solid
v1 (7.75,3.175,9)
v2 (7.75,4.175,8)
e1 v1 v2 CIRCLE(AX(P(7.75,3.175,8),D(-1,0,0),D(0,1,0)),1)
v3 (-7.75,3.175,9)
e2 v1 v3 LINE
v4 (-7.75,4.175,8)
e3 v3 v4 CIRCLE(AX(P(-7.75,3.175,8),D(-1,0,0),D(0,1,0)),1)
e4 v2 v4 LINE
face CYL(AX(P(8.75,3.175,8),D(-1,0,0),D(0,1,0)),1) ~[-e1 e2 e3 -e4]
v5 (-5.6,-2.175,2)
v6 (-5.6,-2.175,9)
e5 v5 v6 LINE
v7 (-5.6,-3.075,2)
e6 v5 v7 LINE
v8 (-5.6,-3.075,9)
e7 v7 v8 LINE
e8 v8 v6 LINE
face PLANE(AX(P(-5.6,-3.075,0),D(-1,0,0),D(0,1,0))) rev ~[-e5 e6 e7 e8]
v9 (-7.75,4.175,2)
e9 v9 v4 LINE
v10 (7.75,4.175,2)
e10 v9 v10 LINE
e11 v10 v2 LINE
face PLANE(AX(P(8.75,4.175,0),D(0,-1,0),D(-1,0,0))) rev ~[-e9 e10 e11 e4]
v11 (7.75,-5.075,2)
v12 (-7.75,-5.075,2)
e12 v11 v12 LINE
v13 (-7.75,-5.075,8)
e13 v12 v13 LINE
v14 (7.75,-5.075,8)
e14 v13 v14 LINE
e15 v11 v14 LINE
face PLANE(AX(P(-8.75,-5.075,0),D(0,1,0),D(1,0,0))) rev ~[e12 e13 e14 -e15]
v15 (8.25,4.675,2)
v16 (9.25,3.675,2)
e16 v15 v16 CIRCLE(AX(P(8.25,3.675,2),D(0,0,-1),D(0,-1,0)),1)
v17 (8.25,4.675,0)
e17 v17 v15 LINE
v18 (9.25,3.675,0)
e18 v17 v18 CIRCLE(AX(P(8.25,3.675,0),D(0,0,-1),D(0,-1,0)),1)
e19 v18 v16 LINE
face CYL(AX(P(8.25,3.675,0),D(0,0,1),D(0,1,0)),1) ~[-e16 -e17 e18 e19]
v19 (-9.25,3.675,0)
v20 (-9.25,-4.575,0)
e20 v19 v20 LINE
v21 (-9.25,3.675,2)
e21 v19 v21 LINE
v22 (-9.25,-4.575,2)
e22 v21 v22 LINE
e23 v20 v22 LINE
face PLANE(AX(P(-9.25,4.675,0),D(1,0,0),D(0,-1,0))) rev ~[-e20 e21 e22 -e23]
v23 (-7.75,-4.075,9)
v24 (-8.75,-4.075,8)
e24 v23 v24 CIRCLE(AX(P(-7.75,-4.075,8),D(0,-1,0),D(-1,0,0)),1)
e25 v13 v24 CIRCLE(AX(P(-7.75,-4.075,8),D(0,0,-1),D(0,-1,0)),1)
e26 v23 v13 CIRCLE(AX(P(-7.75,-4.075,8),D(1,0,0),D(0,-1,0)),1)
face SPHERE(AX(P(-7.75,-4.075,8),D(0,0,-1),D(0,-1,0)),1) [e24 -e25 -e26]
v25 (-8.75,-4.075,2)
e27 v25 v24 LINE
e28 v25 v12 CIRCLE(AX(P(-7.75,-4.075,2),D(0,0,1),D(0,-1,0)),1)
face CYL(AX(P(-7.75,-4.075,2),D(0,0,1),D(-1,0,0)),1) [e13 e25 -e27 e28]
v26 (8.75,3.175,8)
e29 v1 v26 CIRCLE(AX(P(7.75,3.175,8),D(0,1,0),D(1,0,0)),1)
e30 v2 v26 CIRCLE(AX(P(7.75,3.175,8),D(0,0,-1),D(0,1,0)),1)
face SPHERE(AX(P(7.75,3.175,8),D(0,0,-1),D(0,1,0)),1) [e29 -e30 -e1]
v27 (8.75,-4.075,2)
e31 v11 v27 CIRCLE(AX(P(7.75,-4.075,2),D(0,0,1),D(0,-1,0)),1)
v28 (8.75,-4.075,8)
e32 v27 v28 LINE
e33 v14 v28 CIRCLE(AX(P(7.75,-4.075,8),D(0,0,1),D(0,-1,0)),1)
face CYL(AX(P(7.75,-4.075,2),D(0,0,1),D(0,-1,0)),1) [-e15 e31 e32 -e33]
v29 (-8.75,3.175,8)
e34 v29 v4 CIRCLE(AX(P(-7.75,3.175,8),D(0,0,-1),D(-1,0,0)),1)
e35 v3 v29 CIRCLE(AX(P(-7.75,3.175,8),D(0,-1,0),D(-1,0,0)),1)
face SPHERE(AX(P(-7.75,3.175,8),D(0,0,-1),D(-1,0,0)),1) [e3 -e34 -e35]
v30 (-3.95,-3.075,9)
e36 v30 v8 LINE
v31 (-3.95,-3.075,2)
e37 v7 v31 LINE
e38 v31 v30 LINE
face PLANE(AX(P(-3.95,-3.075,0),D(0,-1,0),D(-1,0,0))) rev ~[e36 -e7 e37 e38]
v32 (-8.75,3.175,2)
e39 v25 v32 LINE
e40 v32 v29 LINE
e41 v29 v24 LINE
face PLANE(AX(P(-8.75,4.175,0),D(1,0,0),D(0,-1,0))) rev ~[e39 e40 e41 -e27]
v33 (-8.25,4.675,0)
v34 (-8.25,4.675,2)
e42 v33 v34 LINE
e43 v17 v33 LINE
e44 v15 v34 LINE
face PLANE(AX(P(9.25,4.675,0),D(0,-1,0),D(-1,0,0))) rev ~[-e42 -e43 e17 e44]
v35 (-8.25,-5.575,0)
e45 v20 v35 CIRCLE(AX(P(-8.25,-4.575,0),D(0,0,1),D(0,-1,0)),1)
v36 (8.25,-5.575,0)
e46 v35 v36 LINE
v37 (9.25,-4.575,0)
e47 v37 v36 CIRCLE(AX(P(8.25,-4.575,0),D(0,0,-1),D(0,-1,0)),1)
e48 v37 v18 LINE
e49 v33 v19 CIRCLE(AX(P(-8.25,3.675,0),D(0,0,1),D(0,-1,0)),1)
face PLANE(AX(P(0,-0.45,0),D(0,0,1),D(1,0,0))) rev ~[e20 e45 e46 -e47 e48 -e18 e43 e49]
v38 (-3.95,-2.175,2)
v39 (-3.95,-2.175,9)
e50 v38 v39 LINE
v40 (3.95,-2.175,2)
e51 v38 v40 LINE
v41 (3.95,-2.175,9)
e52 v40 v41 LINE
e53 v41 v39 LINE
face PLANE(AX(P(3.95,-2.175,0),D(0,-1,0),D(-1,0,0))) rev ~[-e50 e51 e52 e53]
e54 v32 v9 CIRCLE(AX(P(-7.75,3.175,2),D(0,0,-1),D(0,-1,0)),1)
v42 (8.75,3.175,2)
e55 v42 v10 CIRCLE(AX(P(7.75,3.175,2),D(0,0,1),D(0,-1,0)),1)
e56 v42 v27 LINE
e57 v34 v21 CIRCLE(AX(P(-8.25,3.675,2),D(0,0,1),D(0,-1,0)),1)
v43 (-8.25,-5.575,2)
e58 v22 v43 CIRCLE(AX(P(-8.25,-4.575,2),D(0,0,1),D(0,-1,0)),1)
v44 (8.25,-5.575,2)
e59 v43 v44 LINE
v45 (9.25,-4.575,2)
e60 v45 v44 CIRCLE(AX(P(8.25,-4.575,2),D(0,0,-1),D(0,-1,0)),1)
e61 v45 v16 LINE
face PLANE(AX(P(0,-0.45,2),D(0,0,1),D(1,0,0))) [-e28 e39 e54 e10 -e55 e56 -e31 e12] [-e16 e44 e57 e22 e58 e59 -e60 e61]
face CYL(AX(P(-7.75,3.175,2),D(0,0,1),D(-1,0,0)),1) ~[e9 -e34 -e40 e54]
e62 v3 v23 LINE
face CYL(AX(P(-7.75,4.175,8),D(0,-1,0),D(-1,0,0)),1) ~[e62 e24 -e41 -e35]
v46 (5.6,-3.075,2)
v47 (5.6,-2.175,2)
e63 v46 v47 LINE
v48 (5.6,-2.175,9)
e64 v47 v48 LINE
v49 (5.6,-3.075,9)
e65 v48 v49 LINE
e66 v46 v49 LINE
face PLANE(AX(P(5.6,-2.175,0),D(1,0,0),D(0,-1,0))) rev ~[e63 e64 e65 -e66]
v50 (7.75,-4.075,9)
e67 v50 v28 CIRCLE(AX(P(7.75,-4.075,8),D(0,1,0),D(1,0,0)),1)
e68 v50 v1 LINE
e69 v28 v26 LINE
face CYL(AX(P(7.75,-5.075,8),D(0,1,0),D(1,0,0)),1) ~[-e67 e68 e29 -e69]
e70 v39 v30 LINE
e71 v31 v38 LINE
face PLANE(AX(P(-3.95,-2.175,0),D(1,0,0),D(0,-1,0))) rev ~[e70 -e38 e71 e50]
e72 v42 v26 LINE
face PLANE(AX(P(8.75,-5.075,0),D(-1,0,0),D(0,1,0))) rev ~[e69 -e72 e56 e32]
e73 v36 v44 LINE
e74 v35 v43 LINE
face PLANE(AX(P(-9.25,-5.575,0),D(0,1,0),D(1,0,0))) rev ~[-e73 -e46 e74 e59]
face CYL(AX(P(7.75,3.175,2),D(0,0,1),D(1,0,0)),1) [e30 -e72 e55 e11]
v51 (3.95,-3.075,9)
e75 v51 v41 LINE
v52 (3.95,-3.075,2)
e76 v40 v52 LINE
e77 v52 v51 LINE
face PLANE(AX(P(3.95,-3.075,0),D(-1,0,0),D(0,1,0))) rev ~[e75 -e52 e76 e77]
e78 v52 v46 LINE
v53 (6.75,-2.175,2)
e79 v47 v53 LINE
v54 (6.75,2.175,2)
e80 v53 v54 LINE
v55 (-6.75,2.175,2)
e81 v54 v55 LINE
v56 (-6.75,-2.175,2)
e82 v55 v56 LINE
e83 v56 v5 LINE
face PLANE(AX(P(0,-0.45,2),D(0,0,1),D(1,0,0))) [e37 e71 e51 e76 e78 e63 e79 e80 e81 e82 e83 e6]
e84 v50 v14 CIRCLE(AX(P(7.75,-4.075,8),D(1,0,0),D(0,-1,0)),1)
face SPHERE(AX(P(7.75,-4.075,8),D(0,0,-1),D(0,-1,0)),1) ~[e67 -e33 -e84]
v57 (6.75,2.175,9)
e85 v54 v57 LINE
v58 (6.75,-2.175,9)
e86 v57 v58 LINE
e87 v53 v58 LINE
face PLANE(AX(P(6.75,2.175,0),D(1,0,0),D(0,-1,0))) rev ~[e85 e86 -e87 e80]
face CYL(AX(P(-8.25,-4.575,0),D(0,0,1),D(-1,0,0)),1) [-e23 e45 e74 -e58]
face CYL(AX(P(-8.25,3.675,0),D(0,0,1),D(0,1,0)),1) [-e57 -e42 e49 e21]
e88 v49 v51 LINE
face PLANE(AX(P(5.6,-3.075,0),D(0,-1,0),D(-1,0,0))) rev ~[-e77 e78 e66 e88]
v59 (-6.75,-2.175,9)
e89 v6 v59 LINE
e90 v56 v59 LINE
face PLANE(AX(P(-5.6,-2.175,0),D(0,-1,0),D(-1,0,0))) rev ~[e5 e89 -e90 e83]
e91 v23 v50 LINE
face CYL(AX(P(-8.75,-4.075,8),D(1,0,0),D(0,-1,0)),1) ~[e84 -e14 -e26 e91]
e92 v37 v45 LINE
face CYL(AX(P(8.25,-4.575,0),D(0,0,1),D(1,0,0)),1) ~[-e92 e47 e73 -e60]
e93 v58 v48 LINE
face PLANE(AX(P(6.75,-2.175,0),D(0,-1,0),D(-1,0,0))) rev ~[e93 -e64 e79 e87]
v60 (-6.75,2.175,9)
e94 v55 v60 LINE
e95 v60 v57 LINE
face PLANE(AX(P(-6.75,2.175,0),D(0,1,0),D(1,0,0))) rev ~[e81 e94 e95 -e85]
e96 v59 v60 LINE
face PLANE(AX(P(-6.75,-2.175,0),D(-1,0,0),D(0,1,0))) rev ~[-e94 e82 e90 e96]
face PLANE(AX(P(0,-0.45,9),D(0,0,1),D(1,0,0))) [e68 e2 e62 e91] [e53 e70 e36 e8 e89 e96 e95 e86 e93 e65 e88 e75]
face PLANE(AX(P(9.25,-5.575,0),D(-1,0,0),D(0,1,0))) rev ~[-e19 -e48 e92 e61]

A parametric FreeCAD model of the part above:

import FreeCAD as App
import Part
import Sketcher
Q = App.Units.Quantity


def edges_at(feature, points):
    """Names of the edges that pass closest to the given points."""
    edges = feature.Shape.Edges
    near = lambda p: min(range(len(edges)), key=lambda i: edges[i].distToShape(Part.Vertex(*p))[0])
    return sorted({f"Edge{near(p) + 1}" for p in points})

doc = App.newDocument("Part")
body = doc.addObject("PartDesign::Body", "Body")

# Sketch on XY plane
sketch1 = body.newObject("Sketcher::SketchObject", "Sketch")
sketch1.AttachmentSupport = (doc.getObject("XY_Plane"), [""])
sketch1.MapMode = "FlatFace"
sketch1.addGeometry(Part.LineSegment(App.Vector(9, 5, 0), App.Vector(-9, 5, 0)), False)
sketch1.addGeometry(Part.LineSegment(App.Vector(-9, 5, 0), App.Vector(-9, -6, 0)), False)
sketch1.addGeometry(Part.LineSegment(App.Vector(-9, -6, 0), App.Vector(9, -6, 0)), False)
sketch1.addGeometry(Part.LineSegment(App.Vector(9, -6, 0), App.Vector(9, 5, 0)), False)
sketch1.addConstraint(Sketcher.Constraint("Coincident", 0, 2, 1, 1))
sketch1.addConstraint(Sketcher.Constraint("Coincident", 1, 2, 2, 1))
sketch1.addConstraint(Sketcher.Constraint("Coincident", 2, 2, 3, 1))
sketch1.addConstraint(Sketcher.Constraint("Coincident", 3, 2, 0, 1))
sketch1.addConstraint(Sketcher.Constraint("Horizontal", 0))
sketch1.addConstraint(Sketcher.Constraint("Vertical", 1))
sketch1.addConstraint(Sketcher.Constraint("Horizontal", 2))
sketch1.addConstraint(Sketcher.Constraint("Vertical", 3))
sketch1.addConstraint(Sketcher.Constraint("DistanceX", 0, 2, 0, 1, Q("18.5 mm")))
sketch1.addConstraint(Sketcher.Constraint("DistanceY", 1, 2, 1, 1, Q("10.25 mm")))
sketch1.addConstraint(Sketcher.Constraint("DistanceX", 0, 2, -1, 1, Q("9.25 mm")))
sketch1.addConstraint(Sketcher.Constraint("DistanceY", -1, 1, 0, 2, Q("4.675 mm")))
pad1 = body.newObject("PartDesign::Pad", "Pad")
pad1.Profile = sketch1
pad1.Length = 2

# Sketch on XY plane
sketch2 = body.newObject("Sketcher::SketchObject", "Sketch001")
sketch2.AttachmentSupport = (doc.getObject("XY_Plane"), [""])
sketch2.MapMode = "FlatFace"
sketch2.addGeometry(Part.LineSegment(App.Vector(8.8, 4.2, 0), App.Vector(-8.8, 4.2, 0)), False)
sketch2.addGeometry(Part.LineSegment(App.Vector(-8.8, 4.2, 0), App.Vector(-8.8, -5.1, 0)), False)
sketch2.addGeometry(Part.LineSegment(App.Vector(-8.8, -5.1, 0), App.Vector(8.8, -5.1, 0)), False)
sketch2.addGeometry(Part.LineSegment(App.Vector(8.8, -5.1, 0), App.Vector(8.8, 4.2, 0)), False)
sketch2.addGeometry(Part.LineSegment(App.Vector(-6.8, -2.2, 0), App.Vector(-6.8, 2.2, 0)), False)
sketch2.addGeometry(Part.LineSegment(App.Vector(-6.8, 2.2, 0), App.Vector(6.8, 2.2, 0)), False)
sketch2.addGeometry(Part.LineSegment(App.Vector(6.8, 2.2, 0), App.Vector(6.8, -2.2, 0)), False)
sketch2.addGeometry(Part.LineSegment(App.Vector(6.8, -2.2, 0), App.Vector(5.6, -2.2, 0)), False)
sketch2.addGeometry(Part.LineSegment(App.Vector(5.6, -2.2, 0), App.Vector(5.6, -3.1, 0)), False)
sketch2.addGeometry(Part.LineSegment(App.Vector(5.6, -3.1, 0), App.Vector(4, -3.1, 0)), False)
sketch2.addGeometry(Part.LineSegment(App.Vector(4, -3.1, 0), App.Vector(4, -2.2, 0)), False)
sketch2.addGeometry(Part.LineSegment(App.Vector(4, -2.2, 0), App.Vector(-4, -2.2, 0)), False)
sketch2.addGeometry(Part.LineSegment(App.Vector(-4, -2.2, 0), App.Vector(-4, -3.1, 0)), False)
sketch2.addGeometry(Part.LineSegment(App.Vector(-4, -3.1, 0), App.Vector(-5.6, -3.1, 0)), False)
sketch2.addGeometry(Part.LineSegment(App.Vector(-5.6, -3.1, 0), App.Vector(-5.6, -2.2, 0)), False)
sketch2.addGeometry(Part.LineSegment(App.Vector(-5.6, -2.2, 0), App.Vector(-6.8, -2.2, 0)), False)
sketch2.addConstraint(Sketcher.Constraint("Coincident", 0, 2, 1, 1))
sketch2.addConstraint(Sketcher.Constraint("Coincident", 1, 2, 2, 1))
sketch2.addConstraint(Sketcher.Constraint("Coincident", 2, 2, 3, 1))
sketch2.addConstraint(Sketcher.Constraint("Coincident", 3, 2, 0, 1))
sketch2.addConstraint(Sketcher.Constraint("Coincident", 4, 2, 5, 1))
sketch2.addConstraint(Sketcher.Constraint("Coincident", 5, 2, 6, 1))
sketch2.addConstraint(Sketcher.Constraint("Coincident", 6, 2, 7, 1))
sketch2.addConstraint(Sketcher.Constraint("Coincident", 7, 2, 8, 1))
sketch2.addConstraint(Sketcher.Constraint("Coincident", 8, 2, 9, 1))
sketch2.addConstraint(Sketcher.Constraint("Coincident", 9, 2, 10, 1))
sketch2.addConstraint(Sketcher.Constraint("Coincident", 10, 2, 11, 1))
sketch2.addConstraint(Sketcher.Constraint("Coincident", 11, 2, 12, 1))
sketch2.addConstraint(Sketcher.Constraint("Coincident", 12, 2, 13, 1))
sketch2.addConstraint(Sketcher.Constraint("Coincident", 13, 2, 14, 1))
sketch2.addConstraint(Sketcher.Constraint("Coincident", 14, 2, 15, 1))
sketch2.addConstraint(Sketcher.Constraint("Coincident", 15, 2, 4, 1))
sketch2.addConstraint(Sketcher.Constraint("Horizontal", 0))
sketch2.addConstraint(Sketcher.Constraint("Vertical", 1))
sketch2.addConstraint(Sketcher.Constraint("Horizontal", 2))
sketch2.addConstraint(Sketcher.Constraint("Vertical", 3))
sketch2.addConstraint(Sketcher.Constraint("Vertical", 4))
sketch2.addConstraint(Sketcher.Constraint("Horizontal", 5))
sketch2.addConstraint(Sketcher.Constraint("Vertical", 6))
sketch2.addConstraint(Sketcher.Constraint("Horizontal", 7))
sketch2.addConstraint(Sketcher.Constraint("Vertical", 8))
sketch2.addConstraint(Sketcher.Constraint("Horizontal", 9))
sketch2.addConstraint(Sketcher.Constraint("Vertical", 10))
sketch2.addConstraint(Sketcher.Constraint("Horizontal", 11))
sketch2.addConstraint(Sketcher.Constraint("Vertical", 12))
sketch2.addConstraint(Sketcher.Constraint("Horizontal", 13))
sketch2.addConstraint(Sketcher.Constraint("Vertical", 14))
sketch2.addConstraint(Sketcher.Constraint("Horizontal", 15))
sketch2.addConstraint(Sketcher.Constraint("Symmetric", 4, 2, 6, 2, -1, 1))
sketch2.addConstraint(Sketcher.Constraint("Symmetric", 9, 2, 12, 2, -2))
sketch2.addConstraint(Sketcher.Constraint("Symmetric", 7, 2, 14, 2, -2))
sketch2.addConstraint(Sketcher.Constraint("Horizontal", 7, 2, 10, 2))
sketch2.addConstraint(Sketcher.Constraint("DistanceX", 0, 2, 0, 1, Q("17.5 mm")))
sketch2.addConstraint(Sketcher.Constraint("DistanceX", 5, 1, 5, 2, Q("13.5 mm")))
sketch2.addConstraint(Sketcher.Constraint("DistanceX", 11, 2, 11, 1, Q("7.9 mm")))
sketch2.addConstraint(Sketcher.Constraint("DistanceY", 8, 2, 8, 1, Q("0.9 mm")))
sketch2.addConstraint(Sketcher.Constraint("DistanceX", 0, 2, 4, 2, Q("2 mm")))
sketch2.addConstraint(Sketcher.Constraint("DistanceY", 4, 2, 0, 2, Q("2 mm")))
sketch2.addConstraint(Sketcher.Constraint("DistanceY", 2, 2, 8, 2, Q("2 mm")))
sketch2.addConstraint(Sketcher.Constraint("DistanceX", 7, 2, 7, 1, Q("1.15 mm")))
sketch2.addConstraint(Sketcher.Constraint("DistanceY", 1, 2, 1, 1, Q("9.25 mm")))
pad2 = body.newObject("PartDesign::Pad", "Pad001")
pad2.Profile = sketch2
pad2.Length = 9
doc.recompute()

fillet = body.newObject("PartDesign::Fillet", "Fillet")
fillet.Base = (pad2, edges_at(pad2, [
    (-9.25, -5.575, 1),
    (-8.75, -5.075, 5.5),
    (-9.25, 4.675, 1),
    (-8.75, 4.175, 5.5),
    (8.75, -5.075, 5.5),
    (9.25, -5.575, 1),
    (8.75, 4.175, 5.5),
    (9.25, 4.675, 1),
    (0, -5.075, 9),
    (-8.75, -0.45, 9),
    (0, 4.175, 9),
    (8.75, -0.45, 9),
]))
fillet.Radius = 1

doc.recompute()
